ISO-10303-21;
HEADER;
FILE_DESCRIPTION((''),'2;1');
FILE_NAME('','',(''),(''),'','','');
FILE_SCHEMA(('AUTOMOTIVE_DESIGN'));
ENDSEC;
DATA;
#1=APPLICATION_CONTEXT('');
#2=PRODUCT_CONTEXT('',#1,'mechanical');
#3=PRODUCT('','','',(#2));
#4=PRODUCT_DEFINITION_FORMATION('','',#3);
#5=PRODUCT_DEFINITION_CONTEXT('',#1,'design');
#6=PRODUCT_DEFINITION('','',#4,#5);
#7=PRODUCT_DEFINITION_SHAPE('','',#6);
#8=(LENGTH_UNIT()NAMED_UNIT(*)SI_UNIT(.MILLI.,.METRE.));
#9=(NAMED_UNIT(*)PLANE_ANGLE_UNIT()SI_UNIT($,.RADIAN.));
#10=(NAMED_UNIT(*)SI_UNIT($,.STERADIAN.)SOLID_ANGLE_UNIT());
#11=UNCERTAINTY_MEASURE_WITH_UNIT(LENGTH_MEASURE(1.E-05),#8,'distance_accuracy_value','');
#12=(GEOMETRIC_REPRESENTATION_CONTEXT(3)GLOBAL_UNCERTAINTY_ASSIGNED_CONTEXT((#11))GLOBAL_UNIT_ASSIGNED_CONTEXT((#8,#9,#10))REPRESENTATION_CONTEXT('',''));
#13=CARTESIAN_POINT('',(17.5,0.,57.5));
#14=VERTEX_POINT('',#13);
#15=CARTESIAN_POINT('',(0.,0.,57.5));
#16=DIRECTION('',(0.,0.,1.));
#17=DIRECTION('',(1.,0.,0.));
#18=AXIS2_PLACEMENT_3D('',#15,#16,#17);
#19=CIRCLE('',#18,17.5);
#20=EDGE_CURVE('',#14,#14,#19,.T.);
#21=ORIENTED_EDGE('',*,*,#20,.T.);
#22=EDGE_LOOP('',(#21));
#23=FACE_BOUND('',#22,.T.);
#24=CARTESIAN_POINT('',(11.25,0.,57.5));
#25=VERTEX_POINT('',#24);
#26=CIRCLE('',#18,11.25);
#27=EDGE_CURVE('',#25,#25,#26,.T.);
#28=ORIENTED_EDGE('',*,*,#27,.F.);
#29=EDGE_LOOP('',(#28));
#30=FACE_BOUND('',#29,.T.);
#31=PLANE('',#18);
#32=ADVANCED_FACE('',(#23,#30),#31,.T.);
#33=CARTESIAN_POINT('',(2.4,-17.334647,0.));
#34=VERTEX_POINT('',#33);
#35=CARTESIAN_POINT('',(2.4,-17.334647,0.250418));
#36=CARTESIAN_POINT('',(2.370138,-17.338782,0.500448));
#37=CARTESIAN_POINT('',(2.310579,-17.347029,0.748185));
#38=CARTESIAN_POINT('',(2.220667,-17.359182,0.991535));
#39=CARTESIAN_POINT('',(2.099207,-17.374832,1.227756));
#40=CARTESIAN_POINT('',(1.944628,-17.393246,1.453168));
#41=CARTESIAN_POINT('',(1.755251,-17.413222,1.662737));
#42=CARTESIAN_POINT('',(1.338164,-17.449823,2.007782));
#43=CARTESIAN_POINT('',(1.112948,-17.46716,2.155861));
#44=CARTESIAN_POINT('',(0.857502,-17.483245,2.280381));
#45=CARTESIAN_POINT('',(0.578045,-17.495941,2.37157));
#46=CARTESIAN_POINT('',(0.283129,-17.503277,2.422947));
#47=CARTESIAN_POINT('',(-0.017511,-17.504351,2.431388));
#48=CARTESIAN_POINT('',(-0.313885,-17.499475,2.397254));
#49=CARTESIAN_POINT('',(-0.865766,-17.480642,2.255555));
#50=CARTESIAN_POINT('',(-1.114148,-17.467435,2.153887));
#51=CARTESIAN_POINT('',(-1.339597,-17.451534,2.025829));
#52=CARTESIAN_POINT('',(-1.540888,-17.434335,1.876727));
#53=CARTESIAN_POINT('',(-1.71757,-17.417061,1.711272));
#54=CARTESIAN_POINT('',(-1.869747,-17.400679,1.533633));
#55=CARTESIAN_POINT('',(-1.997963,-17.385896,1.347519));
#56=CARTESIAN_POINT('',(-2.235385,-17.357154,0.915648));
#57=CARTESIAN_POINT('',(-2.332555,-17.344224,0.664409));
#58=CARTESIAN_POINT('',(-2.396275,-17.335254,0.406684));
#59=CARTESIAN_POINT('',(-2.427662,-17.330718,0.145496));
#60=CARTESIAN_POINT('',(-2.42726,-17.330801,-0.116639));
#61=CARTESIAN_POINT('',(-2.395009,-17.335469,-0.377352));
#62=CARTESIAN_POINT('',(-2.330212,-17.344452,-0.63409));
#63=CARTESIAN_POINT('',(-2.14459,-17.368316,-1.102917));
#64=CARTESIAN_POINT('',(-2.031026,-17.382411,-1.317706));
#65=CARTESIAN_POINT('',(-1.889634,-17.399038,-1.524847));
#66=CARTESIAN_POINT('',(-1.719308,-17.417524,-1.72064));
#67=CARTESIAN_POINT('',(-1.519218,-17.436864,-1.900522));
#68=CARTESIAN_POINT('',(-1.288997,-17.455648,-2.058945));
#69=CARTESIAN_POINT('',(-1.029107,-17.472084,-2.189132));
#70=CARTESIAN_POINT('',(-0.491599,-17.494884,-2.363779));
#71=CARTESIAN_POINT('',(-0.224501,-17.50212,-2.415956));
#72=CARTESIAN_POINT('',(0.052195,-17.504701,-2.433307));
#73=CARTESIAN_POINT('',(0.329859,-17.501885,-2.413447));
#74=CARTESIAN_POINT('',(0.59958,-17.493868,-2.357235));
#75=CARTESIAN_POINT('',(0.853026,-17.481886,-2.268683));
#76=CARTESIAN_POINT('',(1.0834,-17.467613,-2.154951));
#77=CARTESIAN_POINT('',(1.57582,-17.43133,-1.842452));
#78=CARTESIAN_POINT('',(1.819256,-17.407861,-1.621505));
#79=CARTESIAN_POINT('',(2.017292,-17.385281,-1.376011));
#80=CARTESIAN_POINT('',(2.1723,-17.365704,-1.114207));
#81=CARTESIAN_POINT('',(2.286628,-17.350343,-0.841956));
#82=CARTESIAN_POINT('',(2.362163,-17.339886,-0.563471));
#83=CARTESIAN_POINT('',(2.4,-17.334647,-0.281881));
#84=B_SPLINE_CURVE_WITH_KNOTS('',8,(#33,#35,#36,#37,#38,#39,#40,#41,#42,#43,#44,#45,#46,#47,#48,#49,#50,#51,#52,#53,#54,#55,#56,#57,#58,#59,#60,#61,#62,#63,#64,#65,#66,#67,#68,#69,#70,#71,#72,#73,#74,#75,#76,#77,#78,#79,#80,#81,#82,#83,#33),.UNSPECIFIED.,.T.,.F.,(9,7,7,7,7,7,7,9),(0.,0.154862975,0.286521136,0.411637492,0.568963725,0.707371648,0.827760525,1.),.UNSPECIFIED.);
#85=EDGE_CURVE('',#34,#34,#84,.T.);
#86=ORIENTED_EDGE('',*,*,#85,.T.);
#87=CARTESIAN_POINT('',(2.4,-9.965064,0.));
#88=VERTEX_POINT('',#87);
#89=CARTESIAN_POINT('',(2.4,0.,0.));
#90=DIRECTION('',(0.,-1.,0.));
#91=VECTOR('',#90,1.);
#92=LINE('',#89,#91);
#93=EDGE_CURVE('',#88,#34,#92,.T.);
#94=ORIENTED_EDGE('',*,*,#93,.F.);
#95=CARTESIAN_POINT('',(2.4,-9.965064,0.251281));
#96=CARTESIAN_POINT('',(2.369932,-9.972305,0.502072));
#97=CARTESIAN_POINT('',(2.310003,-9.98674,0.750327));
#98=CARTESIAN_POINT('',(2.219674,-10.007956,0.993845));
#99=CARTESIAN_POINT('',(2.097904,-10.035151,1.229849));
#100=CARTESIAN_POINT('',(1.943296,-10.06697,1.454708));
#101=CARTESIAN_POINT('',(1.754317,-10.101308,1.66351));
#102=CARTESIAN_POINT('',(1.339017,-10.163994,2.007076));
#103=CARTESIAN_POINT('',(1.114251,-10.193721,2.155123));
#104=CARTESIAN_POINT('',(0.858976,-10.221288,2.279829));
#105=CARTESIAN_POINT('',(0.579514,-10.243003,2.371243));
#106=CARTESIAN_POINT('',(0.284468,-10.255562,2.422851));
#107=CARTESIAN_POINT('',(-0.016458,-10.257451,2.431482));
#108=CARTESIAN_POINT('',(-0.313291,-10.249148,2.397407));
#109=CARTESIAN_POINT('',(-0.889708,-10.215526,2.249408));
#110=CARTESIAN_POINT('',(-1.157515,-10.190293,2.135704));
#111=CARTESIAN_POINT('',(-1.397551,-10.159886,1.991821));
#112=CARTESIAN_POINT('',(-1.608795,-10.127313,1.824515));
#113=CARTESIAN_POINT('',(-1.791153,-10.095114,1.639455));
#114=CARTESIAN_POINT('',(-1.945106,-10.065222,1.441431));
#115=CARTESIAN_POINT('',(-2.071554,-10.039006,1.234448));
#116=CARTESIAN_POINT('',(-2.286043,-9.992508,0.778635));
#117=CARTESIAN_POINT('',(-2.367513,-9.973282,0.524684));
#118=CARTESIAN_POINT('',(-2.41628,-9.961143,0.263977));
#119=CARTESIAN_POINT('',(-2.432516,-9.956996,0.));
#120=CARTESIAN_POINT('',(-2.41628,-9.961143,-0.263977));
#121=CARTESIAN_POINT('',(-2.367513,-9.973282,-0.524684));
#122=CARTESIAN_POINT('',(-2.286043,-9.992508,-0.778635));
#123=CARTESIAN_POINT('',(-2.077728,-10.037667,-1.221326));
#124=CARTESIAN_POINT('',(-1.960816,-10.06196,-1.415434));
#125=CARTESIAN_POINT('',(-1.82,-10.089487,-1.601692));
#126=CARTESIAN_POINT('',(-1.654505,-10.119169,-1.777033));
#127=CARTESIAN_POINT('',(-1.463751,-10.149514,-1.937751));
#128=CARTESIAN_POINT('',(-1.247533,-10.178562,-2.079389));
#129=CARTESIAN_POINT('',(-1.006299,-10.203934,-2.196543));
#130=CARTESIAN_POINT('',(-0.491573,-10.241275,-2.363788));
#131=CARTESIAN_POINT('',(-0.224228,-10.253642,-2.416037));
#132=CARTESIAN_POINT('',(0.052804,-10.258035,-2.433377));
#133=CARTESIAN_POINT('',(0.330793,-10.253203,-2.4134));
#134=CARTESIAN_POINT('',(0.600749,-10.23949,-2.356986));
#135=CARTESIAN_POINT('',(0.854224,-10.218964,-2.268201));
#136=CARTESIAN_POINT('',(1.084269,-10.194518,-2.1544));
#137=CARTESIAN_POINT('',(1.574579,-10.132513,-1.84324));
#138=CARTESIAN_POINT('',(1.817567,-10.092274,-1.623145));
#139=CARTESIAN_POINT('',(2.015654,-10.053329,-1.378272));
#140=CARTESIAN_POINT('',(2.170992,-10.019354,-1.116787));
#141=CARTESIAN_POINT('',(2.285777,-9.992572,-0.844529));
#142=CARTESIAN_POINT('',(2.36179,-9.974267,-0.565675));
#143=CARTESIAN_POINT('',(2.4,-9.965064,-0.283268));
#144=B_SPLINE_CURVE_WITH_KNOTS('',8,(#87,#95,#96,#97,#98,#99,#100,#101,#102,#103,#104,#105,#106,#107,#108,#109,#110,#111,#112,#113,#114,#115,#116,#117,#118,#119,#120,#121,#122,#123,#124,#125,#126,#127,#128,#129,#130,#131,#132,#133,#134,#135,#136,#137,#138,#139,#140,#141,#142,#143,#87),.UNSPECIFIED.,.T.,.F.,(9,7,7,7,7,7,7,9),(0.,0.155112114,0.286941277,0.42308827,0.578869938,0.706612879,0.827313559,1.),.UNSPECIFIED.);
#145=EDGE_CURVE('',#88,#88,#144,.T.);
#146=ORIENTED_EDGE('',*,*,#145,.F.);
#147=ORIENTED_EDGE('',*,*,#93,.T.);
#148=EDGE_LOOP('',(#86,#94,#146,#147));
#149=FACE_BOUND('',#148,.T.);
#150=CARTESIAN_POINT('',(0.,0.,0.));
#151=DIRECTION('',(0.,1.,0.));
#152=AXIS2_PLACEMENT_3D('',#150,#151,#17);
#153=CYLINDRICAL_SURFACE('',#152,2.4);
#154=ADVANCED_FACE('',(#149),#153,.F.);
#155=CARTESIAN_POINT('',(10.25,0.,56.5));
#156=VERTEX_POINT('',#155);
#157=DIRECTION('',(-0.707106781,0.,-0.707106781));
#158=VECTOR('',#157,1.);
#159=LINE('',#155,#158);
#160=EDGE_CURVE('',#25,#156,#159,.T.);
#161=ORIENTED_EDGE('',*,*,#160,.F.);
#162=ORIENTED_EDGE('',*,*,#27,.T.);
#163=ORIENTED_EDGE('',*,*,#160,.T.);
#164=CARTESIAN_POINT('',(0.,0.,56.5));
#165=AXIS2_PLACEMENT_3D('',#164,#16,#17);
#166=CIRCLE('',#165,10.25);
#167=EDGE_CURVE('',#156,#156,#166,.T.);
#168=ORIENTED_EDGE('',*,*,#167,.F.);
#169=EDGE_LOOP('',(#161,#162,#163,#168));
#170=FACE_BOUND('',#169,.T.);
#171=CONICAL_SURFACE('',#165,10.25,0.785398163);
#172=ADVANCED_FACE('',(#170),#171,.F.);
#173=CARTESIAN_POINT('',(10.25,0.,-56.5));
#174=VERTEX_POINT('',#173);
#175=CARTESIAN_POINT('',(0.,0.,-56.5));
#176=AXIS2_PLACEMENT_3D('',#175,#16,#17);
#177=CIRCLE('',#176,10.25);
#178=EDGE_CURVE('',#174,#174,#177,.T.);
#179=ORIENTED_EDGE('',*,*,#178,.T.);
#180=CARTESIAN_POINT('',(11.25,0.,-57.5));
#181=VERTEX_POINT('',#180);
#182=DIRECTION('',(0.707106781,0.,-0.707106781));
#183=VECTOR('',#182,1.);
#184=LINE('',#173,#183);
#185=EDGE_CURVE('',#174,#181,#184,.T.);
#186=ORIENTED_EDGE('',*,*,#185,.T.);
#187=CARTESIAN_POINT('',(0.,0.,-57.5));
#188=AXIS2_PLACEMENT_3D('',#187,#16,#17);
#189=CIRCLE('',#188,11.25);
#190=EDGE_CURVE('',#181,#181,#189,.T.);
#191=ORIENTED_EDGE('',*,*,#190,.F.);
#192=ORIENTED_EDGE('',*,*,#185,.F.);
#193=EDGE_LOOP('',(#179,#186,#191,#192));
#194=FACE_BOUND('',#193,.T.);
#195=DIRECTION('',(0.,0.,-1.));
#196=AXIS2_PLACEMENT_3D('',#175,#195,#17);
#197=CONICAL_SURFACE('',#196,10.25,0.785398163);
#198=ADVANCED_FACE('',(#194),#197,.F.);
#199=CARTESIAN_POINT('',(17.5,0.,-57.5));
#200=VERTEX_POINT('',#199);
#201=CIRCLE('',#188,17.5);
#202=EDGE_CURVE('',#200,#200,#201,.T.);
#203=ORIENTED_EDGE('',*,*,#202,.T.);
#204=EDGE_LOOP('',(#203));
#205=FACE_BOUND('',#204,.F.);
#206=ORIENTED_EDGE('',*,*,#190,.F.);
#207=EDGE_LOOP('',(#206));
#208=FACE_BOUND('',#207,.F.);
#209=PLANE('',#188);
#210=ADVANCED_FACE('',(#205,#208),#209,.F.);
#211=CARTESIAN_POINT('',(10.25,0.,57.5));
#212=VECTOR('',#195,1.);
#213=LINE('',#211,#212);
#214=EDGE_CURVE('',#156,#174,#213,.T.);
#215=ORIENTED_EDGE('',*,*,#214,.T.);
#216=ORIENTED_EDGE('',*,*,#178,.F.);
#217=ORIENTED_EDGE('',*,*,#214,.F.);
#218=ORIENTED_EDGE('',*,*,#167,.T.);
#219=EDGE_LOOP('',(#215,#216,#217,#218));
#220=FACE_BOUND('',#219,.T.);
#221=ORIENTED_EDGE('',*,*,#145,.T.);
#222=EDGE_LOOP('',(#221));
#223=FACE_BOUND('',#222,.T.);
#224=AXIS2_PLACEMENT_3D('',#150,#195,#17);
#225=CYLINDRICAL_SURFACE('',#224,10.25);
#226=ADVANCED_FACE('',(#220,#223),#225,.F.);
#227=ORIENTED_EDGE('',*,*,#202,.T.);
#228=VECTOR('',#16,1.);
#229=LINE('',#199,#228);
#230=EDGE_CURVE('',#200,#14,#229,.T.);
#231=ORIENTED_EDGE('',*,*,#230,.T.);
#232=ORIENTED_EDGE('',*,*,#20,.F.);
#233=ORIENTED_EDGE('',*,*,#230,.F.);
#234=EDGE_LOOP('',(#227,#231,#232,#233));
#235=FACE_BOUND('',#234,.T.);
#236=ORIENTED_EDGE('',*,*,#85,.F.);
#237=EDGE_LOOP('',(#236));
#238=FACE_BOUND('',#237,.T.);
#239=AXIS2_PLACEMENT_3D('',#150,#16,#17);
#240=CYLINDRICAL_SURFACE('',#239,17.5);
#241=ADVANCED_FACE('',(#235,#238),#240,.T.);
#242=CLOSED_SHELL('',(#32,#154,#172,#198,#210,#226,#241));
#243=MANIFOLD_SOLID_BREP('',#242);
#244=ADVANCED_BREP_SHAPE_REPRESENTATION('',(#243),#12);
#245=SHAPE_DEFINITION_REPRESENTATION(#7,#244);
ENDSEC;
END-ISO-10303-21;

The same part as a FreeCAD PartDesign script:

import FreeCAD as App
import Part
import Sketcher


def edges_at(feature, points):
    """Names of the edges that pass closest to the given points."""
    edges = feature.Shape.Edges
    near = lambda p: min(range(len(edges)), key=lambda i: edges[i].distToShape(Part.Vertex(*p))[0])
    return sorted({f"Edge{near(p) + 1}" for p in points})

doc = App.newDocument("Part")
params = doc.addObject("Spreadsheet::Sheet", "Params")
for row, (alias, value) in enumerate([
    ("sketch1_diameter", "35 mm"),
    ("sketch1_diameter2", "20.5 mm"),
    ("pad1_length", "115 mm"),
    ("sketch2_diameter", "4.8 mm"),
    ("pocket1_length", "25 mm"),
    ("chamfer_size", "1 mm"),
    ("chamfer2_size", "1 mm"),
], start=1):
    params.set(f"A{row}", alias)
    params.set(f"B{row}", "=" + value)
    params.setAlias(f"B{row}", alias)

body = doc.addObject("PartDesign::Body", "Body")

# Sketch on XY plane
sketch1 = doc.addObject("Sketcher::SketchObject", "Sketch")
body.addObject(sketch1)
sketch1.AttachmentSupport = (doc.XY_Plane, [""])
sketch1.MapMode = "FlatFace"
sketch1.addGeometry(Part.Circle(App.Vector(0, 0, 0), App.Vector(0, 0, 1), 18), False)
sketch1.addGeometry(Part.Circle(App.Vector(0, 0, 0), App.Vector(0, 0, 1), 10), False)
sketch1.addConstraint(Sketcher.Constraint("Coincident", 0, 3, -1, 1))
sketch1.addConstraint(Sketcher.Constraint("Coincident", 1, 3, -1, 1))
sketch1.addConstraint(Sketcher.Constraint("Diameter", 0, 35.0))
sketch1.addConstraint(Sketcher.Constraint("Diameter", 1, 20.5))
sketch1.setExpression("Constraints[2]", "Params.sketch1_diameter")
sketch1.setExpression("Constraints[3]", "Params.sketch1_diameter2")
pad1 = doc.addObject("PartDesign::Pad", "Pad")
body.addObject(pad1)
pad1.Profile = sketch1
pad1.setExpression("Length", "Params.pad1_length")
pad1.Midplane = True

# Sketch on XZ plane
sketch2 = doc.addObject("Sketcher::SketchObject", "Sketch001")
body.addObject(sketch2)
sketch2.AttachmentSupport = (doc.XZ_Plane, [""])
sketch2.MapMode = "FlatFace"
sketch2.addGeometry(Part.Circle(App.Vector(0, 0, 0), App.Vector(0, 0, 1), 2.4), False)
sketch2.addConstraint(Sketcher.Constraint("Coincident", 0, 3, -1, 1))
sketch2.addConstraint(Sketcher.Constraint("Diameter", 0, 4.8))
sketch2.setExpression("Constraints[1]", "Params.sketch2_diameter")
pocket1 = doc.addObject("PartDesign::Pocket", "Pocket")
body.addObject(pocket1)
pocket1.Profile = sketch2
pocket1.setExpression("Length", "Params.pocket1_length")
pocket1.Reversed = True
doc.recompute()

chamfer = doc.addObject("PartDesign::Chamfer", "Chamfer")
body.addObject(chamfer)
chamfer.Base = (pocket1, edges_at(pocket1, [(-10.25, 0, 57.5)]))
chamfer.setExpression("Size", "Params.chamfer_size")
doc.recompute()

chamfer2 = doc.addObject("PartDesign::Chamfer", "Chamfer001")
body.addObject(chamfer2)
chamfer2.Base = (chamfer, edges_at(chamfer, [(-10.25, 0, -57.5)]))
chamfer2.setExpression("Size", "Params.chamfer2_size")

doc.recompute()
